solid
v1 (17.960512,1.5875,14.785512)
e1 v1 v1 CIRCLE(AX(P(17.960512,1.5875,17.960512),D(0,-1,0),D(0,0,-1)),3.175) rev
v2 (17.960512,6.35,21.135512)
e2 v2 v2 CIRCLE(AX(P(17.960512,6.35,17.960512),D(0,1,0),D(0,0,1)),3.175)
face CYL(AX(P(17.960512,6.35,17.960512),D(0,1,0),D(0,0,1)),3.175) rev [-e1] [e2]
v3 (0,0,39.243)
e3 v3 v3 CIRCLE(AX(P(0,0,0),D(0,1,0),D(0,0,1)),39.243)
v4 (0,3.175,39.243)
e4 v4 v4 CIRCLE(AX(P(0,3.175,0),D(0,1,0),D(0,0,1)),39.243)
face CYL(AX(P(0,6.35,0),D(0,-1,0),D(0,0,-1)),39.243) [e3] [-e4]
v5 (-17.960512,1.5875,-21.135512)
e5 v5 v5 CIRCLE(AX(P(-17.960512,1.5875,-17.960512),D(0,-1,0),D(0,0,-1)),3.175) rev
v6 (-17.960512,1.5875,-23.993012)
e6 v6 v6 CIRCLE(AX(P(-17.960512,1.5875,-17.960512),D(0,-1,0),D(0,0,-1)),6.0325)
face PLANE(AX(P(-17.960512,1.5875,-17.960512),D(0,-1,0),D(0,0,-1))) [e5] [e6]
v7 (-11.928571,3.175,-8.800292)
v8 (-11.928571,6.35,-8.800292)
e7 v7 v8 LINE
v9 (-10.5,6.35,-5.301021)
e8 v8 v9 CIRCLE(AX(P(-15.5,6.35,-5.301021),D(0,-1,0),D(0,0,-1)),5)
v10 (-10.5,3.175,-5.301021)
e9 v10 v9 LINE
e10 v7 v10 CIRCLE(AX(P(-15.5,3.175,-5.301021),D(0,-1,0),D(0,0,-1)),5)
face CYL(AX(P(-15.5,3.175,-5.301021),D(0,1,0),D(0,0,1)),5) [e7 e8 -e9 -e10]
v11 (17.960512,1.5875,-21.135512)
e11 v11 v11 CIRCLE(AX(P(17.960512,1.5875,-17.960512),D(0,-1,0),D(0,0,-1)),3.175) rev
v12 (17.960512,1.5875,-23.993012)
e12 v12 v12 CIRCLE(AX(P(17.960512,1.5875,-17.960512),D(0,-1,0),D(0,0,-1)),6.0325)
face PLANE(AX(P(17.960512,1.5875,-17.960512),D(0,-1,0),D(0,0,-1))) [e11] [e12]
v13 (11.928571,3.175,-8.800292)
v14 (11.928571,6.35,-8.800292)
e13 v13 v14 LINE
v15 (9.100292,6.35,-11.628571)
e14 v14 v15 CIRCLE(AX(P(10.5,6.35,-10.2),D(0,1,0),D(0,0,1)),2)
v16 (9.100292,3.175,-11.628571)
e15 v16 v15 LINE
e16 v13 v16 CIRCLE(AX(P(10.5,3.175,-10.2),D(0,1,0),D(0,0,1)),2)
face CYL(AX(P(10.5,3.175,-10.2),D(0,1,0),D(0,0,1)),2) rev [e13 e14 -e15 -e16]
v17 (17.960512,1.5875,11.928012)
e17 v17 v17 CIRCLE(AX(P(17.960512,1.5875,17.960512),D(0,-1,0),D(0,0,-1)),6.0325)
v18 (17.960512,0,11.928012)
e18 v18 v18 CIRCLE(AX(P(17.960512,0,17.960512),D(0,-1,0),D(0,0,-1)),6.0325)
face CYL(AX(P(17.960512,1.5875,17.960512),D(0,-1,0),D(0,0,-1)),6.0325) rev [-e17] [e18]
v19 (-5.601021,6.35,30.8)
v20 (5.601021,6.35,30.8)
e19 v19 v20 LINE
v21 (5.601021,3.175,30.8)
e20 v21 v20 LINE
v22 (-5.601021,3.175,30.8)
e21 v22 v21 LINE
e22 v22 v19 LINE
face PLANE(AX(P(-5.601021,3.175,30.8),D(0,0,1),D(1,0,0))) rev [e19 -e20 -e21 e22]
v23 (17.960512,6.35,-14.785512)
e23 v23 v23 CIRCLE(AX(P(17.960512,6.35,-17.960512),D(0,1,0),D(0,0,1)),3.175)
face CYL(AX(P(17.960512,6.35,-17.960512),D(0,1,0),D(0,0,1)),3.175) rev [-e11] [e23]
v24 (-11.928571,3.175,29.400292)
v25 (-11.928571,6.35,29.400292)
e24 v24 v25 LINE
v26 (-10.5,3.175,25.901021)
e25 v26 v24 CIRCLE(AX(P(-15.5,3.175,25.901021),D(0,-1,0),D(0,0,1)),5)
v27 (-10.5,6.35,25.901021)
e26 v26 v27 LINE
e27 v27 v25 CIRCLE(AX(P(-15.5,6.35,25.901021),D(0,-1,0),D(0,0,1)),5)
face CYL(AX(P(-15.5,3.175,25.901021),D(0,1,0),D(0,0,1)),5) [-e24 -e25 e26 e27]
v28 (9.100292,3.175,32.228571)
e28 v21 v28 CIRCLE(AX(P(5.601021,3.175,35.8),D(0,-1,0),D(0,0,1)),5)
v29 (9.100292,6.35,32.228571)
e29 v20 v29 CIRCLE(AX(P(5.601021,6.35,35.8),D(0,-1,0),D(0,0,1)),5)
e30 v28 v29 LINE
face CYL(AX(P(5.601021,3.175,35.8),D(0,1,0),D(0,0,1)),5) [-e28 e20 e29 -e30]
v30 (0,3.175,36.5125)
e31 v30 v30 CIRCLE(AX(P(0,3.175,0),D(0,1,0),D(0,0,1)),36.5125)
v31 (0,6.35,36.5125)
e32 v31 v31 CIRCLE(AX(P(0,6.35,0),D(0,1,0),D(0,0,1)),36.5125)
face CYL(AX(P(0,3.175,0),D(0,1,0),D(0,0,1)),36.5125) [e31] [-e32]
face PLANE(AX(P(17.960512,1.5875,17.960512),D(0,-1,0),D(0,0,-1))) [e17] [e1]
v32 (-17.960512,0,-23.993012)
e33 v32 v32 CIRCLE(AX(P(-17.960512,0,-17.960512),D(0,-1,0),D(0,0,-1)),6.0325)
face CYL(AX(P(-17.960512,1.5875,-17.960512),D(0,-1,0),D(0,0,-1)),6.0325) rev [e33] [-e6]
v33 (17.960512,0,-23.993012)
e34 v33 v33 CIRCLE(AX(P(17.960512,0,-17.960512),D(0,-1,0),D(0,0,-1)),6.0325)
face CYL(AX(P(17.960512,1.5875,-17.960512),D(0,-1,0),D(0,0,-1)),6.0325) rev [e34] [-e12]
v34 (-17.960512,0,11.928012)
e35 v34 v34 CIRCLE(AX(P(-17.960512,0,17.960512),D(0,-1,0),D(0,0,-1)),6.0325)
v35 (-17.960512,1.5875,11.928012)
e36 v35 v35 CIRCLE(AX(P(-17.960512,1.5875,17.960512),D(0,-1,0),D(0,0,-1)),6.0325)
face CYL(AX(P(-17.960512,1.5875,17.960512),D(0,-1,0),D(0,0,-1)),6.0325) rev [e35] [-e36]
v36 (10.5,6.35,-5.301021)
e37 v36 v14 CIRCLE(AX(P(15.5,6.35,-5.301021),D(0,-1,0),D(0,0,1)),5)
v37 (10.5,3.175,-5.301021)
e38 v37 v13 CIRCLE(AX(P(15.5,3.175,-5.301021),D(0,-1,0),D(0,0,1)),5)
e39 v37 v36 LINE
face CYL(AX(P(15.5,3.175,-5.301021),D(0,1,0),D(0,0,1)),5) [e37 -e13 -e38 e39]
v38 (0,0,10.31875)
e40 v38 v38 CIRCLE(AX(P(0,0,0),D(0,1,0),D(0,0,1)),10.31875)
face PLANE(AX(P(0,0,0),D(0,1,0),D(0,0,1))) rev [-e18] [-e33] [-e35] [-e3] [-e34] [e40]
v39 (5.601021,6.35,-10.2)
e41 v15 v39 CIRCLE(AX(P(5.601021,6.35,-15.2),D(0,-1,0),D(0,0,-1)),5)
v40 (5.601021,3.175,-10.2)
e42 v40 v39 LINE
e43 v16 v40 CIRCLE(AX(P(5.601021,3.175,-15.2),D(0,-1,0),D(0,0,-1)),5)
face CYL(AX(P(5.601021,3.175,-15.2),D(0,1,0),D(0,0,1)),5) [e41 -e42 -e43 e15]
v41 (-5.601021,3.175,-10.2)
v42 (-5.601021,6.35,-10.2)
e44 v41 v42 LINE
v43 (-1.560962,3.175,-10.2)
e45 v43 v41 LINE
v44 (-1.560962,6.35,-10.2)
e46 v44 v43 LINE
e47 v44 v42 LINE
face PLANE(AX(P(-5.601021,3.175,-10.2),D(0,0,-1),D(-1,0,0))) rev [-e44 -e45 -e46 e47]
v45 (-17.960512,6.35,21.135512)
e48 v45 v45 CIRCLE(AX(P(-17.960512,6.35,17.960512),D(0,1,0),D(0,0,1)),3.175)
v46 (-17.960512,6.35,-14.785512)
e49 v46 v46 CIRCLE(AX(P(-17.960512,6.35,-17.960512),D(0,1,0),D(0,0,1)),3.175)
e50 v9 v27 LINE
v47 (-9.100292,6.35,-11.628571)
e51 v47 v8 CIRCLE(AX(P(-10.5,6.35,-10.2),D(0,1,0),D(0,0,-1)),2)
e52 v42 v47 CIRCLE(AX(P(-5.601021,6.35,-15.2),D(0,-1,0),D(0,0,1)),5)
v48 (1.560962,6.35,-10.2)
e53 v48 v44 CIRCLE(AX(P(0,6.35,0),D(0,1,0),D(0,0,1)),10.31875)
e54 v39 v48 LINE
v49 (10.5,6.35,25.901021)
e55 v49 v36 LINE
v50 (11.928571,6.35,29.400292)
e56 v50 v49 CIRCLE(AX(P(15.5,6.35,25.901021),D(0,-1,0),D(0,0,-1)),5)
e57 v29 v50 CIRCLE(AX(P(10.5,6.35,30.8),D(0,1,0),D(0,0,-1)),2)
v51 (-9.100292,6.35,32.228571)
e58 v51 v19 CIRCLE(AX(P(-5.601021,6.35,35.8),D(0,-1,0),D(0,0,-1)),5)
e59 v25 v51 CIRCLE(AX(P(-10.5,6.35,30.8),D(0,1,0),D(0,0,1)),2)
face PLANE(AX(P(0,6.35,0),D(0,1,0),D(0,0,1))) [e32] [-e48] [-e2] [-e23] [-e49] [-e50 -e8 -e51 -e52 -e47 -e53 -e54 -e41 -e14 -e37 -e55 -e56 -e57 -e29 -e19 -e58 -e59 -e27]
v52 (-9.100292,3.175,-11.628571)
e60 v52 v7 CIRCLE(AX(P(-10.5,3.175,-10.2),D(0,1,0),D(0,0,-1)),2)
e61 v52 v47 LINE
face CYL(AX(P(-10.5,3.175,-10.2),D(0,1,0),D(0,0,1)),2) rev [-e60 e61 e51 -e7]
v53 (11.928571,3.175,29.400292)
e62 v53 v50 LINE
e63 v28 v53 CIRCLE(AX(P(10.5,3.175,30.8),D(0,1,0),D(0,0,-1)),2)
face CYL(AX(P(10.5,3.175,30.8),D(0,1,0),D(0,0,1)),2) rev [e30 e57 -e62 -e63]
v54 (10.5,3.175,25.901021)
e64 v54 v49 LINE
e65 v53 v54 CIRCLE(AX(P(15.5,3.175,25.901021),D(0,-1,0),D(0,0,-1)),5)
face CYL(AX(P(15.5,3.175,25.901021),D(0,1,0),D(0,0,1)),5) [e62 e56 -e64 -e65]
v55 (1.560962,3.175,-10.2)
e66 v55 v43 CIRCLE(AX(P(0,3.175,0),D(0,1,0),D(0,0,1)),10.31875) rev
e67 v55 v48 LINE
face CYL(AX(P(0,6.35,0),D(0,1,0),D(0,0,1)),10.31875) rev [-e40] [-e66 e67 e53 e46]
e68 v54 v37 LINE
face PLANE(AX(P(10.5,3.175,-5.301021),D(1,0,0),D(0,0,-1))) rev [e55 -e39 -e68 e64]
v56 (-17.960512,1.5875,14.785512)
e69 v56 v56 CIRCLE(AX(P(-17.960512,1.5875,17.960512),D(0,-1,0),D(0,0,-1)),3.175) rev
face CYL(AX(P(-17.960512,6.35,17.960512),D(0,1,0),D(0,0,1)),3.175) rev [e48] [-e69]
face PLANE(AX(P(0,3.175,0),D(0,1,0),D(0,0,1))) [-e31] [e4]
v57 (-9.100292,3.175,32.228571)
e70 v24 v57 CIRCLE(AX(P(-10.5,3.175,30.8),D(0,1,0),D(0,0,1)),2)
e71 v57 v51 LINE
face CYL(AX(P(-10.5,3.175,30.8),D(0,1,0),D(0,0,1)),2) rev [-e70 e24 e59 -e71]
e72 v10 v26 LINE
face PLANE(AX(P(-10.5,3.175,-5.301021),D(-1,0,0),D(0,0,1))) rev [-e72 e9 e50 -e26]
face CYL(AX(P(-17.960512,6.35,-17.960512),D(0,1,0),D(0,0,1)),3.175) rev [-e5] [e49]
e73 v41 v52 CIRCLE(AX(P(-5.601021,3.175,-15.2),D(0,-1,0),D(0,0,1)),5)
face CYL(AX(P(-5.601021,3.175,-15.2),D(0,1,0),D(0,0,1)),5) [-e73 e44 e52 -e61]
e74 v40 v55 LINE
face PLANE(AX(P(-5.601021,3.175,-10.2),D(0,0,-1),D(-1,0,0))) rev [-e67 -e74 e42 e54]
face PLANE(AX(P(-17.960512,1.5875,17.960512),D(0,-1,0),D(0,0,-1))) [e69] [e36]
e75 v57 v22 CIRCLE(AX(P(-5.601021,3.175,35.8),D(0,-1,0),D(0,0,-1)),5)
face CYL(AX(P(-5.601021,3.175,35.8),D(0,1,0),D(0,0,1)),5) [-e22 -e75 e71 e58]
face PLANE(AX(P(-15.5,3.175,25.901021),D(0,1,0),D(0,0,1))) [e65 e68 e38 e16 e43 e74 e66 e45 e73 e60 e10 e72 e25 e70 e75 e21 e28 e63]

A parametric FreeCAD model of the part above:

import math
import FreeCAD as App
import Part
import Sketcher
from FreeCAD import Vector
Q = App.Units.Quantity

doc = App.newDocument("Part")
params = doc.addObject("Spreadsheet::Sheet", "Params")
for row, (alias, value) in enumerate([
    ("sketch1_diameter", "3.09 in"),
    ("pad1_length", "0.25 in"),
    ("sketch2_diameter", "3.09 in"),
    ("sketch2_diameter2", "2.875 in"),
    ("pocket1_length", "0.125 in"),
    ("sketch3_diameter", "0.25 in"),
    ("hole_diameter", "0.25 in"),
    ("sketch4_diameter", "0.8125 in"),
    ("hole2_diameter", "0.8125 in"),
    ("pocket2_length", "0.125 in"),
    ("sketch6_diameter", "0.475 in"),
    ("pocket3_length", "0.0625 in"),
], start=1):
    params.set(f"A{row}", alias)
    params.set(f"B{row}", "=" + value)
    params.setAlias(f"B{row}", alias)

body = doc.addObject("PartDesign::Body", "Body")

# Sketch on XZ plane
sketch1 = body.newObject("Sketcher::SketchObject", "Sketch")
sketch1.AttachmentSupport = (doc.getObject("XZ_Plane"), [""])
sketch1.MapMode = "FlatFace"
sketch1.addGeometry(Part.Circle(Vector(0, 0, 0), Vector(0, 0, 1), 39.243), False)
sketch1.addConstraint([
    Sketcher.Constraint("Coincident", 0, 3, -1, 1),
    Sketcher.Constraint("Diameter", 0, Q("3.09 in")),
])
sketch1.setExpression("Constraints[1]", "Params.sketch1_diameter")
pad1 = body.newObject("PartDesign::Pad", "Pad")
pad1.Profile = sketch1
pad1.setExpression("Length", "Params.pad1_length")
pad1.Reversed = True

# Sketch on XZ plane
sketch2 = body.newObject("Sketcher::SketchObject", "Sketch001")
sketch2.AttachmentSupport = (doc.getObject("XZ_Plane"), [""])
sketch2.MapMode = "FlatFace"
sketch2.AttachmentOffset = App.Placement(Vector(0, 0, -0.25 * 25.4), App.Rotation())
sketch2.addGeometry([
    Part.Circle(Vector(0, 0, 0), Vector(0, 0, 1), 39.243),
    Part.Circle(Vector(0, 0, 0), Vector(0, 0, 1), 36.5125),
], False)
sketch2.addConstraint([
    Sketcher.Constraint("Coincident", 0, 3, -1, 1),
    Sketcher.Constraint("Coincident", 1, 3, -1, 1),
    Sketcher.Constraint("Diameter", 0, Q("3.09 in")),
    Sketcher.Constraint("Diameter", 1, Q("2.875 in")),
])
sketch2.setExpression("Constraints[2]", "Params.sketch2_diameter")
sketch2.setExpression("Constraints[3]", "Params.sketch2_diameter2")
pocket1 = body.newObject("PartDesign::Pocket", "Pocket")
pocket1.Profile = sketch2
pocket1.setExpression("Length", "Params.pocket1_length")
pocket1.Reversed = True

# Sketch on XZ plane
sketch3 = body.newObject("Sketcher::SketchObject", "Sketch002")
sketch3.AttachmentSupport = (doc.getObject("XZ_Plane"), [""])
sketch3.MapMode = "FlatFace"
sketch3.AttachmentOffset = App.Placement(Vector(0, 0, -0.25 * 25.4), App.Rotation())
sketch3.addGeometry([
    Part.Circle(Vector(-17.960512, -17.960512, 0), Vector(0, 0, 1), 3.175),
    Part.Circle(Vector(-17.960512, 17.960512, 0), Vector(0, 0, 1), 3.175),
    Part.Circle(Vector(17.960512, -17.960512, 0), Vector(0, 0, 1), 3.175),
    Part.Circle(Vector(17.960512, 17.960512, 0), Vector(0, 0, 1), 3.175),
], False)
sketch3.addConstraint([
    Sketcher.Constraint("Equal", 0, 1),
    Sketcher.Constraint("Equal", 1, 2),
    Sketcher.Constraint("Equal", 2, 3),
    Sketcher.Constraint("Symmetric", 1, 3, 2, 3, -1, 1),
    Sketcher.Constraint("Symmetric", 0, 3, 3, 3, -1, 1),
    Sketcher.Constraint("Symmetric", 0, 3, 2, 3, -2),
    Sketcher.Constraint("Diameter", 0, Q("0.25 in")),
    Sketcher.Constraint("DistanceX", 0, 3, -1, 1, 17.960512),
    Sketcher.Constraint("DistanceY", 0, 3, -1, 1, 17.960512),
])
sketch3.setExpression("Constraints[6]", "Params.sketch3_diameter")
doc.recompute()
hole = body.newObject("PartDesign::Hole", "Hole")
hole.Profile = sketch3
hole.ThreadType = "None"
hole.setExpression("Diameter", "Params.hole_diameter")
hole.DepthType = "ThroughAll"
hole.Reversed = True

# Sketch on XZ plane
sketch4 = body.newObject("Sketcher::SketchObject", "Sketch003")
sketch4.AttachmentSupport = (doc.getObject("XZ_Plane"), [""])
sketch4.MapMode = "FlatFace"
sketch4.AttachmentOffset = App.Placement(Vector(0, 0, -0.25 * 25.4), App.Rotation())
sketch4.addGeometry(Part.Circle(Vector(0, 0, 0), Vector(0, 0, 1), 10.31875), False)
sketch4.addConstraint([
    Sketcher.Constraint("Coincident", 0, 3, -1, 1),
    Sketcher.Constraint("Diameter", 0, Q("0.8125 in")),
])
sketch4.setExpression("Constraints[1]", "Params.sketch4_diameter")
doc.recompute()
hole2 = body.newObject("PartDesign::Hole", "Hole001")
hole2.Profile = sketch4
hole2.ThreadType = "None"
hole2.setExpression("Diameter", "Params.hole2_diameter")
hole2.DepthType = "ThroughAll"
hole2.Reversed = True

# Sketch on XZ plane
sketch5 = body.newObject("Sketcher::SketchObject", "Sketch004")
sketch5.AttachmentSupport = (doc.getObject("XZ_Plane"), [""])
sketch5.MapMode = "FlatFace"
sketch5.AttachmentOffset = App.Placement(Vector(0, 0, -0.25 * 25.4), App.Rotation())
sketch5.addGeometry([
    Part.LineSegment(Vector(5.601021, -10.2, 0), Vector(-5.601021, -10.2, 0)),  # 0
    Part.ArcOfCircle(Part.Circle(Vector(-5.601021, -15.2, 0), Vector(0, 0, 1), 5), math.radians(90), math.radians(134.415309)),  # 1
    Part.ArcOfCircle(Part.Circle(Vector(-10.5, -10.2, 0), Vector(0, 0, 1), 2), math.radians(135.584691), math.radians(314.415309)),  # 2
    Part.ArcOfCircle(Part.Circle(Vector(-15.5, -5.301021, 0), Vector(0, 0, 1), 5), math.radians(-44.415309), math.radians(0)),  # 3
    Part.LineSegment(Vector(-10.5, -5.301021, 0), Vector(-10.5, 25.901021, 0)),  # 4
    Part.ArcOfCircle(Part.Circle(Vector(-15.5, 25.901021, 0), Vector(0, 0, 1), 5), math.radians(0), math.radians(44.415309)),  # 5
    Part.ArcOfCircle(Part.Circle(Vector(-10.5, 30.8, 0), Vector(0, 0, 1), 2), math.radians(45.584691), math.radians(224.415309)),  # 6
    Part.ArcOfCircle(Part.Circle(Vector(-5.601021, 35.8, 0), Vector(0, 0, 1), 5), math.radians(-134.415309), math.radians(-90)),  # 7
    Part.LineSegment(Vector(-5.601021, 30.8, 0), Vector(5.601021, 30.8, 0)),  # 8
    Part.ArcOfCircle(Part.Circle(Vector(5.601021, 35.8, 0), Vector(0, 0, 1), 5), math.radians(-90), math.radians(-45.584691)),  # 9
    Part.ArcOfCircle(Part.Circle(Vector(10.5, 30.8, 0), Vector(0, 0, 1), 2), math.radians(-44.415309), math.radians(134.415309)),  # 10
    Part.ArcOfCircle(Part.Circle(Vector(15.5, 25.901021, 0), Vector(0, 0, 1), 5), math.radians(135.584691), math.radians(180)),  # 11
    Part.LineSegment(Vector(10.5, 25.901021, 0), Vector(10.5, -5.301021, 0)),  # 12
    Part.ArcOfCircle(Part.Circle(Vector(15.5, -5.301021, 0), Vector(0, 0, 1), 5), math.radians(180), math.radians(224.415309)),  # 13
    Part.ArcOfCircle(Part.Circle(Vector(10.5, -10.2, 0), Vector(0, 0, 1), 2), math.radians(-134.415309), math.radians(44.415309)),  # 14
    Part.ArcOfCircle(Part.Circle(Vector(5.601021, -15.2, 0), Vector(0, 0, 1), 5), math.radians(45.584691), math.radians(90)),  # 15
], False)
sketch5.addConstraint([
    Sketcher.Constraint("Tangent", 0, 2, 1, 1),
    Sketcher.Constraint("Tangent", 1, 2, 2, 2),
    Sketcher.Constraint("Tangent", 2, 1, 3, 1),
    Sketcher.Constraint("Tangent", 3, 2, 4, 1),
    Sketcher.Constraint("Tangent", 4, 2, 5, 1),
    Sketcher.Constraint("Tangent", 5, 2, 6, 2),
    Sketcher.Constraint("Tangent", 6, 1, 7, 1),
    Sketcher.Constraint("Tangent", 7, 2, 8, 1),
    Sketcher.Constraint("Tangent", 8, 2, 9, 1),
    Sketcher.Constraint("Tangent", 9, 2, 10, 2),
    Sketcher.Constraint("Tangent", 10, 1, 11, 1),
    Sketcher.Constraint("Tangent", 11, 2, 12, 1),
    Sketcher.Constraint("Tangent", 12, 2, 13, 1),
    Sketcher.Constraint("Tangent", 13, 2, 14, 2),
    Sketcher.Constraint("Tangent", 14, 1, 15, 1),
    Sketcher.Constraint("Tangent", 15, 2, 0, 1),
    Sketcher.Constraint("Horizontal", 0),
    Sketcher.Constraint("Vertical", 4),
    Sketcher.Constraint("Horizontal", 8),
    Sketcher.Constraint("Vertical", 12),
    Sketcher.Constraint("Equal", 1, 3),
    Sketcher.Constraint("Equal", 3, 5),
    Sketcher.Constraint("Equal", 2, 6),
    Sketcher.Constraint("Equal", 5, 7),
    Sketcher.Constraint("Equal", 7, 9),
    Sketcher.Constraint("Equal", 6, 10),
    Sketcher.Constraint("Equal", 9, 11),
    Sketcher.Constraint("Equal", 11, 13),
    Sketcher.Constraint("Equal", 10, 14),
    Sketcher.Constraint("Equal", 13, 15),
    Sketcher.Constraint("Symmetric", 6, 3, 10, 3, -2),
    Sketcher.Constraint("Symmetric", 3, 3, 13, 3, -2),
    Sketcher.Constraint("Horizontal", 2, 3, 14, 3),
    Sketcher.Constraint("Horizontal", 14, 3, 0, 2),
    Sketcher.Constraint("Horizontal", 10, 3, 7, 2),
    Sketcher.Constraint("Vertical", 2, 3, 6, 3),
    Sketcher.Constraint("Vertical", 6, 3, 3, 2),
    Sketcher.Constraint("Radius", 1, 5.0),
    Sketcher.Constraint("Radius", 2, 2.0),
    Sketcher.Constraint("DistanceY", 2, 3, 5, 3, Q("1.4213 in")),
    Sketcher.Constraint("DistanceX", 0, 2, 0, 1, 11.202041),
    Sketcher.Constraint("DistanceY", 1, 3, -1, 1, 15.2),
])
pocket2 = body.newObject("PartDesign::Pocket", "Pocket001")
pocket2.Profile = sketch5
pocket2.setExpression("Length", "Params.pocket2_length")
pocket2.Reversed = True

# Sketch on XZ plane
sketch6 = body.newObject("Sketcher::SketchObject", "Sketch005")
sketch6.AttachmentSupport = (doc.getObject("XZ_Plane"), [""])
sketch6.MapMode = "FlatFace"
sketch6.addGeometry([
    Part.Circle(Vector(-17.960512, 17.960512, 0), Vector(0, 0, 1), 6.0325),
    Part.Circle(Vector(17.960512, 17.960512, 0), Vector(0, 0, 1), 6.0325),
    Part.Circle(Vector(17.960512, -17.960512, 0), Vector(0, 0, 1), 6.0325),
    Part.Circle(Vector(-17.960512, -17.960512, 0), Vector(0, 0, 1), 6.0325),
], False)
sketch6.addConstraint([
    Sketcher.Constraint("Equal", 0, 1),
    Sketcher.Constraint("Equal", 1, 2),
    Sketcher.Constraint("Equal", 2, 3),
    Sketcher.Constraint("Symmetric", 0, 3, 2, 3, -1, 1),
    Sketcher.Constraint("Symmetric", 1, 3, 3, 3, -1, 1),
    Sketcher.Constraint("Symmetric", 0, 3, 1, 3, -2),
    Sketcher.Constraint("Diameter", 0, Q("0.475 in")),
    Sketcher.Constraint("DistanceX", 0, 3, -1, 1, 17.960512),
    Sketcher.Constraint("DistanceY", -1, 1, 0, 3, 17.960512),
])
sketch6.setExpression("Constraints[6]", "Params.sketch6_diameter")
pocket3 = body.newObject("PartDesign::Pocket", "Pocket002")
pocket3.Profile = sketch6
pocket3.setExpression("Length", "Params.pocket3_length")

doc.recompute()
